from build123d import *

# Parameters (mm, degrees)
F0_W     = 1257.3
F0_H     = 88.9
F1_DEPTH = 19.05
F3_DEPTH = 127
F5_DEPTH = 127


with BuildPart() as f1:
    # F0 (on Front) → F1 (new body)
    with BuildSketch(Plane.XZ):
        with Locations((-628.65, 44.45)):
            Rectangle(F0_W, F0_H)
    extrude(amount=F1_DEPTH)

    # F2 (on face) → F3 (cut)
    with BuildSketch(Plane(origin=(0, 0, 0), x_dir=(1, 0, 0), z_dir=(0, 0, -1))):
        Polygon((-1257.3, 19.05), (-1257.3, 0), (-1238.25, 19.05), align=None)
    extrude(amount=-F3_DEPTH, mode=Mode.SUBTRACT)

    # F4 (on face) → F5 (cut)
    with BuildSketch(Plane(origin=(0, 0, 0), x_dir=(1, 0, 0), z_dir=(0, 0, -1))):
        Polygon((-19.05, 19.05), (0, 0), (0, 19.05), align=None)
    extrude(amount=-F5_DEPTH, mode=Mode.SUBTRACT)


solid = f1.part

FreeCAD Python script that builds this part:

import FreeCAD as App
import Part
import Sketcher

V = App.Vector
Q = App.Units.Quantity

doc = App.newDocument("Part")
params = doc.addObject("Spreadsheet::Sheet", "Params")
for row, (alias, value) in enumerate([
    ("sketch1_width", "49.5 in"),
    ("sketch1_height", "3.5 in"),
    ("pad1_length", "0.75 in"),
    ("sketch2_width", "0.75 in"),
    ("pocket1_length", "5 in"),
    ("sketch3_width", "0.75 in"),
    ("pocket2_length", "5 in"),
], start=1):
    params.set(f"A{row}", alias)
    params.set(f"B{row}", "=" + value)
    params.setAlias(f"B{row}", alias)

body = doc.addObject("PartDesign::Body", "Body")

sketch1 = body.newObject("Sketcher::SketchObject", "Sketch")
sketch1.AttachmentSupport = (doc.getObject("XZ_Plane"), [""])
sketch1.MapMode = "FlatFace"
sketch1.addGeometry([
    Part.LineSegment(V(-1257.3, 88.9, 0), V(-1257.3, 0, 0)),
    Part.LineSegment(V(-1257.3, 0, 0), V(0, 0, 0)),
    Part.LineSegment(V(0, 0, 0), V(0, 88.9, 0)),
    Part.LineSegment(V(0, 88.9, 0), V(-1257.3, 88.9, 0)),
], False)
sketch1.addConstraint([
    Sketcher.Constraint("Coincident", 0, 2, 1, 1),
    Sketcher.Constraint("Coincident", 1, 2, 2, 1),
    Sketcher.Constraint("Coincident", 2, 2, 3, 1),
    Sketcher.Constraint("Coincident", 3, 2, 0, 1),
    Sketcher.Constraint("Vertical", 0),
    Sketcher.Constraint("Horizontal", 1),
    Sketcher.Constraint("Vertical", 2),
    Sketcher.Constraint("Horizontal", 3),
    Sketcher.Constraint("Coincident", 1, 2, -1, 1),
    Sketcher.Constraint("DistanceX", 1, 1, 1, 2, Q("49.5 in")),
    Sketcher.Constraint("DistanceY", 0, 2, 0, 1, Q("3.5 in")),
])
sketch1.setExpression("Constraints[9]", "Params.sketch1_width")
sketch1.setExpression("Constraints[10]", "Params.sketch1_height")
pad1 = body.newObject("PartDesign::Pad", "Pad")
pad1.Profile = sketch1
pad1.setExpression("Length", "Params.pad1_length")

sketch2 = body.newObject("Sketcher::SketchObject", "Sketch001")
sketch2.AttachmentSupport = (doc.getObject("XY_Plane"), [""])
sketch2.MapMode = "FlatFace"
sketch2.addGeometry([
    Part.LineSegment(V(-1257.3, -19.05, 0), V(-1257.3, 0, 0)),
    Part.LineSegment(V(-1257.3, 0, 0), V(-1238.25, -19.05, 0)),
    Part.LineSegment(V(-1238.25, -19.05, 0), V(-1257.3, -19.05, 0)),
], False)
sketch2.addConstraint([
    Sketcher.Constraint("Coincident", 0, 2, 1, 1),
    Sketcher.Constraint("Coincident", 1, 2, 2, 1),
    Sketcher.Constraint("Coincident", 2, 2, 0, 1),
    Sketcher.Constraint("Vertical", 0),
    Sketcher.Constraint("Horizontal", 2),
    Sketcher.Constraint("PointOnObject", 0, 2, -1),
    Sketcher.Constraint("Equal", 2, 0),
    Sketcher.Constraint("DistanceX", 2, 2, 2, 1, Q("0.75 in")),
    Sketcher.Constraint("DistanceX", 0, 2, -1, 1, Q("49.5 in")),
])
sketch2.setExpression("Constraints[7]", "Params.sketch2_width")
pocket1 = body.newObject("PartDesign::Pocket", "Pocket")
pocket1.Profile = sketch2
pocket1.setExpression("Length", "Params.pocket1_length")
pocket1.Reversed = True

sketch3 = body.newObject("Sketcher::SketchObject", "Sketch002")
sketch3.AttachmentSupport = (doc.getObject("XY_Plane"), [""])
sketch3.MapMode = "FlatFace"
sketch3.addGeometry([
    Part.LineSegment(V(-19.05, -19.05, 0), V(0, 0, 0)),
    Part.LineSegment(V(0, 0, 0), V(0, -19.05, 0)),
    Part.LineSegment(V(0, -19.05, 0), V(-19.05, -19.05, 0)),
], False)
sketch3.addConstraint([
    Sketcher.Constraint("Coincident", 0, 2, 1, 1),
    Sketcher.Constraint("Coincident", 1, 2, 2, 1),
    Sketcher.Constraint("Coincident", 2, 2, 0, 1),
    Sketcher.Constraint("Vertical", 1),
    Sketcher.Constraint("Horizontal", 2),
    Sketcher.Constraint("Coincident", 0, 2, -1, 1),
    Sketcher.Constraint("Equal", 2, 1),
    Sketcher.Constraint("DistanceX", 2, 2, 2, 1, Q("0.75 in")),
])
sketch3.setExpression("Constraints[7]", "Params.sketch3_width")
pocket2 = body.newObject("PartDesign::Pocket", "Pocket001")
pocket2.Profile = sketch3
pocket2.setExpression("Length", "Params.pocket2_length")
pocket2.Reversed = True

doc.recompute()
